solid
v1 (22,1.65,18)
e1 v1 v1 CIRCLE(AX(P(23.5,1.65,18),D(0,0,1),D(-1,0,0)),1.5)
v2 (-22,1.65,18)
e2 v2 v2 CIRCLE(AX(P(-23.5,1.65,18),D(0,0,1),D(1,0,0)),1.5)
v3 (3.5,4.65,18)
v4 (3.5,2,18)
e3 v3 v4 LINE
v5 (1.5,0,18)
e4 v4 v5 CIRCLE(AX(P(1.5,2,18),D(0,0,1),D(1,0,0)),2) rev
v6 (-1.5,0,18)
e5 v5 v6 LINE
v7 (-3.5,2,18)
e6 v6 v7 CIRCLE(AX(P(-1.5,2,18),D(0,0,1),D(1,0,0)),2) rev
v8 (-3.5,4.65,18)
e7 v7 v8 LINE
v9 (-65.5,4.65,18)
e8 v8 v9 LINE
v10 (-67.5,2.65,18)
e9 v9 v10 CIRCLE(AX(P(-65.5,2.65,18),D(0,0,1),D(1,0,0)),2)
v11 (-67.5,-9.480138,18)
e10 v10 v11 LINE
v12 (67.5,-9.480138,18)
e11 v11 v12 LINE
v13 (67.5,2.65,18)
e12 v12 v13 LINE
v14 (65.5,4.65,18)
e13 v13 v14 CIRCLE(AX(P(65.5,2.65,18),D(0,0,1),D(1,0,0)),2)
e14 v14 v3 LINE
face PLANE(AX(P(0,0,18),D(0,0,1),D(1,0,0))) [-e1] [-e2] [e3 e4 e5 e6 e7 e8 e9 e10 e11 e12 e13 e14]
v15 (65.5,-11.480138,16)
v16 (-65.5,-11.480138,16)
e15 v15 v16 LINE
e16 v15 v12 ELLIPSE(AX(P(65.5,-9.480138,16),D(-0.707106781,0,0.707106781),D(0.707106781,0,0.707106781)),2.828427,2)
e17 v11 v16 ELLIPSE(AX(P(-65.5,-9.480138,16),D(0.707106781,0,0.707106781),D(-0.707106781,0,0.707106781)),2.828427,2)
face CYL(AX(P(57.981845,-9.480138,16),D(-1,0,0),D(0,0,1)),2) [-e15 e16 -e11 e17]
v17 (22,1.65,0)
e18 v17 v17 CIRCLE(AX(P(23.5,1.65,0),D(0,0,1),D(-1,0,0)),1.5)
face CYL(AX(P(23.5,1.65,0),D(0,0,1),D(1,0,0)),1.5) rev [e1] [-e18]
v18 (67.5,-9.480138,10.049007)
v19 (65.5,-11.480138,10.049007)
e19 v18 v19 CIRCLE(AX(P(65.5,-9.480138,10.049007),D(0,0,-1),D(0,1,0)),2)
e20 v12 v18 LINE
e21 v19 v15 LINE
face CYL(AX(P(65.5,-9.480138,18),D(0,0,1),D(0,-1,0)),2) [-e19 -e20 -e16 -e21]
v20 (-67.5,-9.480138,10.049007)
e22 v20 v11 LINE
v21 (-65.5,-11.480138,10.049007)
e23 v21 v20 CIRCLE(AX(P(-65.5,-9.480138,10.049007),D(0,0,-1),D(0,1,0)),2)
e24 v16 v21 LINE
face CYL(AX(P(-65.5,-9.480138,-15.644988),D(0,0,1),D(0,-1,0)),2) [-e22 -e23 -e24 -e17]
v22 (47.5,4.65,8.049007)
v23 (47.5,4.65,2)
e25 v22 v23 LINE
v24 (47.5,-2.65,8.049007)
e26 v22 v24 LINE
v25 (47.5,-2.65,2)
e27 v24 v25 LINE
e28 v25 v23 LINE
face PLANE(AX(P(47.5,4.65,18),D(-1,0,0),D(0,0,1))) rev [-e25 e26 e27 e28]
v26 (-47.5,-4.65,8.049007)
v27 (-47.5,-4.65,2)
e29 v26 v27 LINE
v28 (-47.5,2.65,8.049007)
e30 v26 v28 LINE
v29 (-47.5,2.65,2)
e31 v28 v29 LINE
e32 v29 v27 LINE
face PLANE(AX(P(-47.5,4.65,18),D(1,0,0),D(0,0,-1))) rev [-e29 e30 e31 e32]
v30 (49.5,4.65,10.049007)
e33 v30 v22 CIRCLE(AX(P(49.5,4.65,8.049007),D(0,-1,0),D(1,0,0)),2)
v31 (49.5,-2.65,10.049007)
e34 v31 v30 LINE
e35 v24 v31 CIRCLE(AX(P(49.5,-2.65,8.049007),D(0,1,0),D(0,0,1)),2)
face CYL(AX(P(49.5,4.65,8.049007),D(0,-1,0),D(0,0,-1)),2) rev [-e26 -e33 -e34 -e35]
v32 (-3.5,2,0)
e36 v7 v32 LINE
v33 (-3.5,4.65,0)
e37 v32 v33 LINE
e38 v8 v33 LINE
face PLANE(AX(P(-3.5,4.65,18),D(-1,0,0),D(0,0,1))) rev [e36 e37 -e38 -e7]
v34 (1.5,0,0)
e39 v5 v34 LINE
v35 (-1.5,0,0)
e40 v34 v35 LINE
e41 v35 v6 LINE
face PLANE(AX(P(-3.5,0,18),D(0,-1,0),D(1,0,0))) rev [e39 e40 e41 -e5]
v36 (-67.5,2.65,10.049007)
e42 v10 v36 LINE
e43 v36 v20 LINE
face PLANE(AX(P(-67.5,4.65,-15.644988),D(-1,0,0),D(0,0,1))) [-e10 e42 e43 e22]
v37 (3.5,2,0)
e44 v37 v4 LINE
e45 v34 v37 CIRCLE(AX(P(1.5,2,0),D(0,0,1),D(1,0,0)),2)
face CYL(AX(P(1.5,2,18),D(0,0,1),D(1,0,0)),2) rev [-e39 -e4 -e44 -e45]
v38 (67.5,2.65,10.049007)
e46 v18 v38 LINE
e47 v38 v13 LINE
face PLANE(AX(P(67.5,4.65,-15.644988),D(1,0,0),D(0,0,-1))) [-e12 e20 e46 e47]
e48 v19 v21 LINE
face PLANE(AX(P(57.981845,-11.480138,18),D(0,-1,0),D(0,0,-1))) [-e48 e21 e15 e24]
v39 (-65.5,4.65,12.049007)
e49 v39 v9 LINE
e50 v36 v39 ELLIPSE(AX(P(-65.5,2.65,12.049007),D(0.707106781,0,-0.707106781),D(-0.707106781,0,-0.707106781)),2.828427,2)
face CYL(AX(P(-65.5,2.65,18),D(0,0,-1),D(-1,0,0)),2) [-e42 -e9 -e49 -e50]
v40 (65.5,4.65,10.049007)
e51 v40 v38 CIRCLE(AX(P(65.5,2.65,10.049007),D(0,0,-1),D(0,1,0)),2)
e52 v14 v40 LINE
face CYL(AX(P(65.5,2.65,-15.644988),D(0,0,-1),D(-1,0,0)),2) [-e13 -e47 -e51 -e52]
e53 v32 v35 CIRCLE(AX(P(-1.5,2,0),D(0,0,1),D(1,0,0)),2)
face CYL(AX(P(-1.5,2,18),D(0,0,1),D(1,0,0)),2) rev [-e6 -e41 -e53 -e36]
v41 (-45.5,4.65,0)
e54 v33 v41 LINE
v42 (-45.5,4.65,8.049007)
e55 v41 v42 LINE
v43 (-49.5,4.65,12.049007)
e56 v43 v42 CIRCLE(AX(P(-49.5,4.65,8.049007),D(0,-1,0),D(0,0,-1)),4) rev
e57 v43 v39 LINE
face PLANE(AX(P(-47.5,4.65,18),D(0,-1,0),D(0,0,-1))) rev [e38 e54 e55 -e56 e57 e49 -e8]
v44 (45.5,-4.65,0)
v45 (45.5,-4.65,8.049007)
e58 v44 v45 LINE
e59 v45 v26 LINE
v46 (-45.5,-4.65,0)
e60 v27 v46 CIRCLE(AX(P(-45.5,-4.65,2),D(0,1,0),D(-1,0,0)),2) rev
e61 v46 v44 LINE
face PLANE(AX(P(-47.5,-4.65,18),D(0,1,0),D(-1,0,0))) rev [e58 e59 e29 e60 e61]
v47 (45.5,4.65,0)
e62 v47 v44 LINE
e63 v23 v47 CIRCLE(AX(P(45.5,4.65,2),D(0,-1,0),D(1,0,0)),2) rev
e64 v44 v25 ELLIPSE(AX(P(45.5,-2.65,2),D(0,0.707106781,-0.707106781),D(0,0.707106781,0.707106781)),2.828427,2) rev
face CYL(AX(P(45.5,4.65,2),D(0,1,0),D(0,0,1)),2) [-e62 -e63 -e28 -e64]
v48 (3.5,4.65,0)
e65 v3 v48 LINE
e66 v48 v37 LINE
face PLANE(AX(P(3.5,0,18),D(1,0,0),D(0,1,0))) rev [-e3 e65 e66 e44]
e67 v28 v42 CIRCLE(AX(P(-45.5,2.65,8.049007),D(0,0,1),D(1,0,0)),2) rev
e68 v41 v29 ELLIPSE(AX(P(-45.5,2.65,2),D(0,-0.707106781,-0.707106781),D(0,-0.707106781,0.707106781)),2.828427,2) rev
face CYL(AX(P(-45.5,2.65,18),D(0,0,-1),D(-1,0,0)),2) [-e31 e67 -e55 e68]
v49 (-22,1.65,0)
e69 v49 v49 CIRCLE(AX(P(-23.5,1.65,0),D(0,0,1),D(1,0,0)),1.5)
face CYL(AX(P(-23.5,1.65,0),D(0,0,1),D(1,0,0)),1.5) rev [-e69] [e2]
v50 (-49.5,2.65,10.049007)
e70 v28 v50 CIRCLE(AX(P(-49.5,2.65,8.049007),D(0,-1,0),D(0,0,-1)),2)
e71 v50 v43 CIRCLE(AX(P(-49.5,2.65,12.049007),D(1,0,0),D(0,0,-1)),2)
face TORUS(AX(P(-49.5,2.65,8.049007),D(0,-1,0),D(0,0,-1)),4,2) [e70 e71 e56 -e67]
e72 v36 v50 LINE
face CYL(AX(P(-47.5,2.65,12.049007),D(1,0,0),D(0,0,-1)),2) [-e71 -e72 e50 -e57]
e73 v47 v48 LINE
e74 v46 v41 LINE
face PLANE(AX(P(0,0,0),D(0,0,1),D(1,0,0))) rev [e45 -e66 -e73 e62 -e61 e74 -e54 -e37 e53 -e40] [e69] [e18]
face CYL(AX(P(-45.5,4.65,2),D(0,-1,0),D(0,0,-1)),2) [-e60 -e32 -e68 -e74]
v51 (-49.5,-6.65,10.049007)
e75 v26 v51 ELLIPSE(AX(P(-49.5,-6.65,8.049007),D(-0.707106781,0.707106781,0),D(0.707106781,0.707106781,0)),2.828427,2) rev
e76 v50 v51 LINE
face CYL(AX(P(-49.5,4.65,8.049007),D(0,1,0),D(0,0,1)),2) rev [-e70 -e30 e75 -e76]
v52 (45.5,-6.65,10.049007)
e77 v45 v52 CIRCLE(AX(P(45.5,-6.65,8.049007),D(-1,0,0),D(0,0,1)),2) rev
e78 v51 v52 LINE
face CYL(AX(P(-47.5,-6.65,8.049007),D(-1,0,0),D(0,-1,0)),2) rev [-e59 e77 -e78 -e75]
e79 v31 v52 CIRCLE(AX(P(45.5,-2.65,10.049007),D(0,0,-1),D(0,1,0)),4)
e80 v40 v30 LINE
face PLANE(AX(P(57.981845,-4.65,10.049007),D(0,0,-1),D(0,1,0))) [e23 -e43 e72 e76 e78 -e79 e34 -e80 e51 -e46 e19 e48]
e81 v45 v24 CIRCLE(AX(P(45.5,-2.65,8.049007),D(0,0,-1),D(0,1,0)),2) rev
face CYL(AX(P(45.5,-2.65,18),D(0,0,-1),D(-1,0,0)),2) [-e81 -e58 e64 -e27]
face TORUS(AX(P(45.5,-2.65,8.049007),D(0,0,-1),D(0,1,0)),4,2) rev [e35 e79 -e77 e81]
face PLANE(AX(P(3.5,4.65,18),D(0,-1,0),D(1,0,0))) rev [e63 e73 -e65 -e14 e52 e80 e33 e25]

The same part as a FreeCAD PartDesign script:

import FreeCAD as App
import Part
import Sketcher
Q = App.Units.Quantity


def edges_at(feature, points):
    """Names of the edges that pass closest to the given points."""
    edges = feature.Shape.Edges
    near = lambda p: min(range(len(edges)), key=lambda i: edges[i].distToShape(Part.Vertex(*p))[0])
    return sorted({f"Edge{near(p) + 1}" for p in points})


def add_polygon(sketch, points):
    """Adds a closed chain of lines whose ends are joined by coincident constraints."""
    first, n = sketch.GeometryCount, len(points)
    for a, b in zip(points, points[1:] + points[:1]):
        sketch.addGeometry(Part.LineSegment(App.Vector(*a, 0), App.Vector(*b, 0)), False)
    for i in range(n):
        sketch.addConstraint(Sketcher.Constraint("Coincident", first + i, 2, first + (i + 1) % n, 1))

doc = App.newDocument("Part")
body = doc.addObject("PartDesign::Body", "Body")

# Sketch on XY plane
sketch1 = body.newObject("Sketcher::SketchObject", "Sketch")
sketch1.AttachmentSupport = (doc.getObject("XY_Plane"), [""])
sketch1.MapMode = "FlatFace"
add_polygon(sketch1, [(-3.5, 4.7), (-47.5, 4.7), (-47.5, -4.7), (47.5, -4.7), (47.5, 4.7), (3.5, 4.7), (3.5, 0), (-3.5, 0)])  # lines 0-7
sketch1.addConstraint([
    Sketcher.Constraint("Horizontal", 0),
    Sketcher.Constraint("Vertical", 1),
    Sketcher.Constraint("Horizontal", 2),
    Sketcher.Constraint("Vertical", 3),
    Sketcher.Constraint("Horizontal", 4),
    Sketcher.Constraint("Vertical", 5),
    Sketcher.Constraint("Horizontal", 6),
    Sketcher.Constraint("Vertical", 7),
    Sketcher.Constraint("Symmetric", 0, 2, 2, 2, -1, 1),
    Sketcher.Constraint("Symmetric", 5, 2, 6, 2, -1, 1),
    Sketcher.Constraint("Horizontal", 0, 2, 3, 2),
    Sketcher.Constraint("DistanceX", 0, 2, 0, 1, Q("44 mm")),
    Sketcher.Constraint("DistanceX", 2, 1, 2, 2, Q("95 mm")),
    Sketcher.Constraint("DistanceY", 1, 2, 1, 1, Q("9.3 mm")),
])
pad1 = body.newObject("PartDesign::Pad", "Pad")
pad1.Profile = sketch1
pad1.Length = 18

# Sketch on XY plane
sketch2 = body.newObject("Sketcher::SketchObject", "Sketch001")
sketch2.AttachmentSupport = (doc.getObject("XY_Plane"), [""])
sketch2.MapMode = "FlatFace"
sketch2.AttachmentOffset = App.Placement(App.Vector(0, 0, 18), App.Rotation())
sketch2.addGeometry([
    Part.Circle(App.Vector(-23.5, 1.6, 0), App.Vector(0, 0, 1), 1.5),
    Part.Circle(App.Vector(23.5, 1.6, 0), App.Vector(0, 0, 1), 1.5),
], False)
sketch2.addConstraint([
    Sketcher.Constraint("Equal", 0, 1),
    Sketcher.Constraint("Symmetric", 0, 3, 1, 3, -2),
    Sketcher.Constraint("Diameter", 0, Q("3 mm")),
    Sketcher.Constraint("DistanceX", 0, 3, 1, 3, Q("47 mm")),
    Sketcher.Constraint("DistanceY", -1, 1, 0, 3, Q("1.65 mm")),
])
pocket1 = body.newObject("PartDesign::Pocket", "Pocket")
pocket1.Profile = sketch2
pocket1.Type = "ThroughAll"

# Sketch on YZ plane
sketch3 = body.newObject("Sketcher::SketchObject", "Sketch002")
sketch3.AttachmentSupport = (doc.getObject("YZ_Plane"), [""])
sketch3.MapMode = "FlatFace"
sketch3.AttachmentOffset = App.Placement(App.Vector(0, 0, -47.5), App.Rotation())
add_polygon(sketch3, [(-5, 10), (-11, 10), (-11, 18), (-5, 18)])  # lines 0-3
sketch3.addConstraint([
    Sketcher.Constraint("Horizontal", 0),
    Sketcher.Constraint("Vertical", 1),
    Sketcher.Constraint("Horizontal", 2),
    Sketcher.Constraint("Vertical", 3),
    Sketcher.Constraint("DistanceY", -1, 1, 1, 2, Q("18 mm")),
    Sketcher.Constraint("DistanceX", 2, 2, -1, 1, Q("4.65 mm")),
    Sketcher.Constraint("DistanceX", 0, 2, 0, 1, Q("6.830138 mm")),
    Sketcher.Constraint("DistanceY", 1, 1, 1, 2, Q("7.950993 mm")),
])
pad2 = body.newObject("PartDesign::Pad", "Pad001")
pad2.Profile = sketch3
pad2.Length = 95

# Sketch on XY plane
sketch4 = body.newObject("Sketcher::SketchObject", "Sketch003")
sketch4.AttachmentSupport = (doc.getObject("XY_Plane"), [""])
sketch4.MapMode = "FlatFace"
sketch4.AttachmentOffset = App.Placement(App.Vector(0, 0, 18), App.Rotation())
add_polygon(sketch4, [(-68, 5), (-68, -11), (-48, -11), (-48, 5)])  # lines 0-3
add_polygon(sketch4, [(48, 5), (48, -11), (68, -11), (68, 5)])  # lines 4-7
sketch4.addConstraint([
    Sketcher.Constraint("Vertical", 0),
    Sketcher.Constraint("Horizontal", 1),
    Sketcher.Constraint("Vertical", 2),
    Sketcher.Constraint("Horizontal", 3),
    Sketcher.Constraint("Vertical", 4),
    Sketcher.Constraint("Horizontal", 5),
    Sketcher.Constraint("Vertical", 6),
    Sketcher.Constraint("Horizontal", 7),
    Sketcher.Constraint("Symmetric", 1, 2, 4, 2, -2),
    Sketcher.Constraint("Symmetric", 3, 2, 6, 2, -2),
    Sketcher.Constraint("DistanceX", 1, 1, 1, 2, Q("20 mm")),
    Sketcher.Constraint("DistanceX", 1, 2, 4, 2, Q("95 mm")),
    Sketcher.Constraint("DistanceY", -1, 1, 2, 2, Q("4.65 mm")),
    Sketcher.Constraint("DistanceY", 0, 2, 0, 1, Q("16.130138 mm")),
])
pad3 = body.newObject("PartDesign::Pad", "Pad002")
pad3.Profile = sketch4
pad3.Length = 7.950993
pad3.Reversed = True
doc.recompute()

fillet = body.newObject("PartDesign::Fillet", "Fillet")
fillet.Base = (pad3, edges_at(pad3, [
    (-47.5, 4.65, 5.025),
    (0, -4.65, 10.049),
    (0, -11.48, 18),
    (-3.5, 0, 9),
    (3.5, 0, 9),
    (-57.5, 4.65, 10.049),
    (47.5, -4.65, 5.025),
    (47.5, 0, 0),
    (-47.5, 0, 0),
    (47.5, 0, 10.049),
    (-47.5, 0, 10.049),
    (67.5, 4.65, 14.025),
    (67.5, -11.48, 14.025),
    (-67.5, 4.65, 14.025),
    (-67.5, -11.48, 14.025),
]))
fillet.Radius = 2

doc.recompute()
